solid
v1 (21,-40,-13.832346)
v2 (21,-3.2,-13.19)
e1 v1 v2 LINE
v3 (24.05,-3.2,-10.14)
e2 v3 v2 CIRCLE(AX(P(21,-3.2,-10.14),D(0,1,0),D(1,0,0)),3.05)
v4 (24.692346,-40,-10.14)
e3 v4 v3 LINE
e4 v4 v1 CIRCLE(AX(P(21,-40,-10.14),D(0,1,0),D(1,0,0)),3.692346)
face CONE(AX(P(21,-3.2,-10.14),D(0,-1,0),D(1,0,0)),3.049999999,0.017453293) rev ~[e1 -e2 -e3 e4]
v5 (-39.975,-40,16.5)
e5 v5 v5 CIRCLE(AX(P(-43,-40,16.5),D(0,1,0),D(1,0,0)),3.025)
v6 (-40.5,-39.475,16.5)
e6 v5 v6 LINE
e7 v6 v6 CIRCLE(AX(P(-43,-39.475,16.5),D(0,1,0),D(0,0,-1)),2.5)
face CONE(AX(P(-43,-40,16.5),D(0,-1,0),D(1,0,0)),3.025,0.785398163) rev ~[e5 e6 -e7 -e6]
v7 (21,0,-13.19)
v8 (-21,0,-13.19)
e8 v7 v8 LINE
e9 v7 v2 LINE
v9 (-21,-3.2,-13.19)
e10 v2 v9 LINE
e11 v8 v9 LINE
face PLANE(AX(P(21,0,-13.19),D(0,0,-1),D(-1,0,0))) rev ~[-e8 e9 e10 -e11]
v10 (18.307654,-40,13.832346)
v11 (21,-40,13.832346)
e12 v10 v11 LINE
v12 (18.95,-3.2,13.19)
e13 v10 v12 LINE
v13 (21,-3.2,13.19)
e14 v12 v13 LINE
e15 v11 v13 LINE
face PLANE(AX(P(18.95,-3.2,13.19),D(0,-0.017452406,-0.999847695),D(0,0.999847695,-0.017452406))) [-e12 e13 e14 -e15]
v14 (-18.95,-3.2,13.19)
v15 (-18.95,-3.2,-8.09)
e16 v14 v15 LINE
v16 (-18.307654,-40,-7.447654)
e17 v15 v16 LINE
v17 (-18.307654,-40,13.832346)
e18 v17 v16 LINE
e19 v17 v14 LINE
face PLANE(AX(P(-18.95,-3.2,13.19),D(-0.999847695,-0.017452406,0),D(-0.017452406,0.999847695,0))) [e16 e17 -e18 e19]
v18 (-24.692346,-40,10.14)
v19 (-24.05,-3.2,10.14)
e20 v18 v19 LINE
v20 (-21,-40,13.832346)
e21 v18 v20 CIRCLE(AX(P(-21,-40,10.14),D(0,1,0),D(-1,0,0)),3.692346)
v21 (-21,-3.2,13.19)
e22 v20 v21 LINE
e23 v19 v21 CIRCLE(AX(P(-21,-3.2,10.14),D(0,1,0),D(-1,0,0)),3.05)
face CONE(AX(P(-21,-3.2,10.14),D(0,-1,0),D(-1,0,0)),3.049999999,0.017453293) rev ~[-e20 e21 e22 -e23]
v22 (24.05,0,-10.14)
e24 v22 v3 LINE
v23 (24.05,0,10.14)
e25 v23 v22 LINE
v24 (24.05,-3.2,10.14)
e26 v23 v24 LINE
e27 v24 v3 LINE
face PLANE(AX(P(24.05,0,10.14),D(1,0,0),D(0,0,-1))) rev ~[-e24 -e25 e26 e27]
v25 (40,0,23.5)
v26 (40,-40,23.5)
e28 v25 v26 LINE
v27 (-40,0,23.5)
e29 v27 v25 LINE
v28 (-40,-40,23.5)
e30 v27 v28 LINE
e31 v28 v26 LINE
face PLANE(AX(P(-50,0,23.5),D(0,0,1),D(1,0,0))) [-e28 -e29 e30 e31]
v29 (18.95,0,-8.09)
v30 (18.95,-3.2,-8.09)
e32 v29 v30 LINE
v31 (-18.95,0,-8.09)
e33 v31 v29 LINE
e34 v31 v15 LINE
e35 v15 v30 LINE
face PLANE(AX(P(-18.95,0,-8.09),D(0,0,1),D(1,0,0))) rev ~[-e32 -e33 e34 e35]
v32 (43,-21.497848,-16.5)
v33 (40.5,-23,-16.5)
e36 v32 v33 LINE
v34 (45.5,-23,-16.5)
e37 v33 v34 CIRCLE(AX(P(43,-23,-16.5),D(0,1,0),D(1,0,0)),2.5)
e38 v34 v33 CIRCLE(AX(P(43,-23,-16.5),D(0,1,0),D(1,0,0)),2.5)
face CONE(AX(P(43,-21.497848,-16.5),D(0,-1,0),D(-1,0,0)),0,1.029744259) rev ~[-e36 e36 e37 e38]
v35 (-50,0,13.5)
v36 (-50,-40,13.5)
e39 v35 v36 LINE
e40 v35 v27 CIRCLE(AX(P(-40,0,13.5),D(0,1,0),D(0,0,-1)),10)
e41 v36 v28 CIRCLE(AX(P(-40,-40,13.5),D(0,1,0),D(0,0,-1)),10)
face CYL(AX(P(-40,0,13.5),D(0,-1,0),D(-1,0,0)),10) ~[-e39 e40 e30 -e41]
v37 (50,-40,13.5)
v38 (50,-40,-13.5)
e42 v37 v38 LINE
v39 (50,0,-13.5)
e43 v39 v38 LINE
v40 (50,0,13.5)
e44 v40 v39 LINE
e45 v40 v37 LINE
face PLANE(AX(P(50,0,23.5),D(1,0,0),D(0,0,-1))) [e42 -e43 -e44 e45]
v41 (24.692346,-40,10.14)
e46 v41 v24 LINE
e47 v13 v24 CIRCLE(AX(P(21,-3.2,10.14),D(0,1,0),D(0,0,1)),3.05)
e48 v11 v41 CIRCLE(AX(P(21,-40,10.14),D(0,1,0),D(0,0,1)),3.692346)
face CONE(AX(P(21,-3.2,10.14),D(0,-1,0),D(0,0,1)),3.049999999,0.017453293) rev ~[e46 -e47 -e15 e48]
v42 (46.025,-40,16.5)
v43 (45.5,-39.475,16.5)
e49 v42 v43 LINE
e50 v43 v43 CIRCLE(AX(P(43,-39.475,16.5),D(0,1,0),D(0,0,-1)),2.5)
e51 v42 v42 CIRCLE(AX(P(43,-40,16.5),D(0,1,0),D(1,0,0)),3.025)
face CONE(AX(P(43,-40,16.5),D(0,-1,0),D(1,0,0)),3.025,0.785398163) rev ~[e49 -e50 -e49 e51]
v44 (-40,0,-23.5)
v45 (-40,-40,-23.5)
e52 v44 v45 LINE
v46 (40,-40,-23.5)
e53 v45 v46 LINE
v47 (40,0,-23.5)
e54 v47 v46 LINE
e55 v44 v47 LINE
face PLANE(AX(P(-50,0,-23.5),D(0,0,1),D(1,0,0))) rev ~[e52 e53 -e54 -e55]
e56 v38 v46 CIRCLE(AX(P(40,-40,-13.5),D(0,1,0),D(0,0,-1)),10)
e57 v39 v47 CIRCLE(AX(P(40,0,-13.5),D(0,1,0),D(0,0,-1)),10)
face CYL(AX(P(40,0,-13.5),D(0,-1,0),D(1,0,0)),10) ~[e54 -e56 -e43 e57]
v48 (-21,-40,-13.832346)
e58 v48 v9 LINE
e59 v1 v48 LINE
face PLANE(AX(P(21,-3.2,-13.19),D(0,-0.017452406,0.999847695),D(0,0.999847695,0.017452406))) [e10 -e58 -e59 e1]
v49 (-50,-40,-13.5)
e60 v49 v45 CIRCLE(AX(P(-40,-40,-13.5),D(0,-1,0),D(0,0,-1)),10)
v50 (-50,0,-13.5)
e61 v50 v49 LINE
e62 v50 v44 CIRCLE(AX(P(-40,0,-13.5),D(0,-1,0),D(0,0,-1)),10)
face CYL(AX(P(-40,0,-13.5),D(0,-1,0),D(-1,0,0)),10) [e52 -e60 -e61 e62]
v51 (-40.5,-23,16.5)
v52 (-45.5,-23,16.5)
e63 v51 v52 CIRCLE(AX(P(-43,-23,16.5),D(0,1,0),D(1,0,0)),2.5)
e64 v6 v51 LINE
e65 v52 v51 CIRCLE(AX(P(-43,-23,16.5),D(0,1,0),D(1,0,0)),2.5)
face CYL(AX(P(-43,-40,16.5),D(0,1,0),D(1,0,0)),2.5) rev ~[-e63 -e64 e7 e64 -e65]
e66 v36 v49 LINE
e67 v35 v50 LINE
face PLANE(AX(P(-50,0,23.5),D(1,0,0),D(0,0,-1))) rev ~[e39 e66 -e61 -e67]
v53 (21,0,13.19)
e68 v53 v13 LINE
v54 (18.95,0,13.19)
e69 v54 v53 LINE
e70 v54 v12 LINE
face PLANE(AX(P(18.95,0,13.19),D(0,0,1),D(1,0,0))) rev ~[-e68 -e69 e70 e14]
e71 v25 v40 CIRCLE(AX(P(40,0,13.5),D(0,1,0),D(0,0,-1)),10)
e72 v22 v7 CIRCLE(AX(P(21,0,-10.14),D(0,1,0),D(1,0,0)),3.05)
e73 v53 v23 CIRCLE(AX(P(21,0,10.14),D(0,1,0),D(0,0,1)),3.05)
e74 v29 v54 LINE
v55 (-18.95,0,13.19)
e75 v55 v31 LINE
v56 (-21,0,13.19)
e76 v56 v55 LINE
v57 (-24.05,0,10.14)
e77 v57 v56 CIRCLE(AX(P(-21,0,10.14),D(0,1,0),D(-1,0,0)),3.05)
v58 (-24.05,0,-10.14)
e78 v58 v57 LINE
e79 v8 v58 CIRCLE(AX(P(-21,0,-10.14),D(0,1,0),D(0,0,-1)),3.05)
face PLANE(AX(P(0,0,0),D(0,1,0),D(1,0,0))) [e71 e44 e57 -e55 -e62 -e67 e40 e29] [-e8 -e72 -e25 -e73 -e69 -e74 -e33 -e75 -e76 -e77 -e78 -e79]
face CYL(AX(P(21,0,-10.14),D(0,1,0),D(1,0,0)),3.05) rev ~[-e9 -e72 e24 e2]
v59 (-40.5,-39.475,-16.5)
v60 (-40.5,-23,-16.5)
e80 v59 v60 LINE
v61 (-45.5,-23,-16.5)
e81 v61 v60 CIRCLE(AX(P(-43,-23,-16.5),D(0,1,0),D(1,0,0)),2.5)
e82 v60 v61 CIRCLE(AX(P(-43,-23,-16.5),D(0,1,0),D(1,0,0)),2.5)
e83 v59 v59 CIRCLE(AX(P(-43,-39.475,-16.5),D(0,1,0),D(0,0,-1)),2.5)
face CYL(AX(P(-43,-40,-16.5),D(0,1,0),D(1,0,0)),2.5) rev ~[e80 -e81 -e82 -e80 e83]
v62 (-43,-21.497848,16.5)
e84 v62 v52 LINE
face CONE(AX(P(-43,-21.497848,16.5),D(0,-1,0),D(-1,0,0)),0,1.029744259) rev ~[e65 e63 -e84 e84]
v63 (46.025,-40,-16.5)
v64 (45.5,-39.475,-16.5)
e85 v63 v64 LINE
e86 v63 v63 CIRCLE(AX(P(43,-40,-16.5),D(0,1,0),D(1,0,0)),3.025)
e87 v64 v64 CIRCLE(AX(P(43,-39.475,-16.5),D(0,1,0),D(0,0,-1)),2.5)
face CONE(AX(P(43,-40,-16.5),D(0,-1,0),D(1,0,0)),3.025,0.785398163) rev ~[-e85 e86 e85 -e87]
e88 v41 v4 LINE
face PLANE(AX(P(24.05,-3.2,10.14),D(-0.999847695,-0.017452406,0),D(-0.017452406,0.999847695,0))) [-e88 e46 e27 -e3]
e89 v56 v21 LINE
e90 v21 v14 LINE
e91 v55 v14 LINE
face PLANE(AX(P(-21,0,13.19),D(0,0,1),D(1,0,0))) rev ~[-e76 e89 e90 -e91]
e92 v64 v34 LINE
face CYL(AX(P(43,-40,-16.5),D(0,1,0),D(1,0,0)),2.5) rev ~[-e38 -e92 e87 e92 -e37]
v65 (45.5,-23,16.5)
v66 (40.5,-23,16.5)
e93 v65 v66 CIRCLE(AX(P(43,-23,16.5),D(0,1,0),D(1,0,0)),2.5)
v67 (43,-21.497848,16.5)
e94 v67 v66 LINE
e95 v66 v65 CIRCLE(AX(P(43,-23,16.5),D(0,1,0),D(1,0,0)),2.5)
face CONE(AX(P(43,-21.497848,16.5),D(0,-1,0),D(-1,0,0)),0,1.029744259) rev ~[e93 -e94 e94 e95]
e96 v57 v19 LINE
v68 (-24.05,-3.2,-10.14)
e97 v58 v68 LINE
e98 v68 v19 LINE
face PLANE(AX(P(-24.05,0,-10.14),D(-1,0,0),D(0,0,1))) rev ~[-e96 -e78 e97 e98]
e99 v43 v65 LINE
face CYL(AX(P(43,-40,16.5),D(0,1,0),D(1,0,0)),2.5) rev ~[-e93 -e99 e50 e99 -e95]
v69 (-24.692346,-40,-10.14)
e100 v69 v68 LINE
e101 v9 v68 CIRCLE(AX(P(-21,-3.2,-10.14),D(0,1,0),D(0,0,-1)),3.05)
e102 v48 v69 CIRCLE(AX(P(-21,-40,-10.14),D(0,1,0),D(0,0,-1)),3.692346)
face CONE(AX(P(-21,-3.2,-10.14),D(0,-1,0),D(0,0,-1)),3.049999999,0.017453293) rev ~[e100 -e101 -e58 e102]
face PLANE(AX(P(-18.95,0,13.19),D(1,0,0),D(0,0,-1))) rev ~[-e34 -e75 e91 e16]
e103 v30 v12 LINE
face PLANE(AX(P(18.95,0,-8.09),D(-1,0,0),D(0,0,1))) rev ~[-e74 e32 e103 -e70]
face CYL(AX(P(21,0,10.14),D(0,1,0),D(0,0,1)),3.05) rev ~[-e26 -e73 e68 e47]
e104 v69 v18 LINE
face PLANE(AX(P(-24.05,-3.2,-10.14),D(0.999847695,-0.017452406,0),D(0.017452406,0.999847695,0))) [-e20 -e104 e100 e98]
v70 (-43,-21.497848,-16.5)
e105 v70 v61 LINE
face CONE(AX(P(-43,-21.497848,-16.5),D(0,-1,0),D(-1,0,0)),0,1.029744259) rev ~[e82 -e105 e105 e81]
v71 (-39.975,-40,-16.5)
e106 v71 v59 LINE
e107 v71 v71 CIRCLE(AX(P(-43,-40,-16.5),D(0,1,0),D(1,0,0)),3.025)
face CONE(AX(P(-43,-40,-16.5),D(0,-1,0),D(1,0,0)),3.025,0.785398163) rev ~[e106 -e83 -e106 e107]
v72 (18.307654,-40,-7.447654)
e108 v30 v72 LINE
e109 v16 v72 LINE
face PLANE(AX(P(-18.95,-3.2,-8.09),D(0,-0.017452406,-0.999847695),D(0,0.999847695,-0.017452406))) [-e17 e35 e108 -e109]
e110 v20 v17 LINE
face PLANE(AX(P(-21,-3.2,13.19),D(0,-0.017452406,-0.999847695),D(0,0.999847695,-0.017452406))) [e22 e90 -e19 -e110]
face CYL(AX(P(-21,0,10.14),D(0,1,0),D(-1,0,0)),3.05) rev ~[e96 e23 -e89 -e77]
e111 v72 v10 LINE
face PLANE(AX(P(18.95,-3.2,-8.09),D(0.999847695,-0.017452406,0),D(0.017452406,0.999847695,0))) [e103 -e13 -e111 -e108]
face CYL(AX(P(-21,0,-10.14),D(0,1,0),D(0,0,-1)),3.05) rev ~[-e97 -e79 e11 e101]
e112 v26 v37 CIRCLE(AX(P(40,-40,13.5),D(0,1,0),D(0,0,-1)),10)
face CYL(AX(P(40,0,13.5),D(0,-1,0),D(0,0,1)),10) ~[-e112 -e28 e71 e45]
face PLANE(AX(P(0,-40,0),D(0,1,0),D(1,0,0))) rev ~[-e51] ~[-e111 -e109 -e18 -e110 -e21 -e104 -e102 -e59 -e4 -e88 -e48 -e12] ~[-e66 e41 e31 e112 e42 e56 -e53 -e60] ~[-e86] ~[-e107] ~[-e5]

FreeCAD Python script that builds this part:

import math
import FreeCAD as App
import Part
import Sketcher
Q = App.Units.Quantity


def edges_at(feature, points):
    """Names of the edges that pass closest to the given points."""
    edges = feature.Shape.Edges
    near = lambda p: min(range(len(edges)), key=lambda i: edges[i].distToShape(Part.Vertex(*p))[0])
    return sorted({f"Edge{near(p) + 1}" for p in points})


def add_polygon(sketch, points):
    """Adds a closed chain of lines whose ends are joined by coincident constraints."""
    first, n = sketch.GeometryCount, len(points)
    for a, b in zip(points, points[1:] + points[:1]):
        sketch.addGeometry(Part.LineSegment(App.Vector(*a, 0), App.Vector(*b, 0)), False)
    for i in range(n):
        sketch.addConstraint(Sketcher.Constraint("Coincident", first + i, 2, first + (i + 1) % n, 1))

doc = App.newDocument("Part")
body = doc.addObject("PartDesign::Body", "Body")

# Sketch on XZ plane
sketch1 = doc.addObject("Sketcher::SketchObject", "Sketch")
body.addObject(sketch1)
sketch1.AttachmentSupport = (doc.XZ_Plane, [""])
sketch1.MapMode = "FlatFace"
add_polygon(sketch1, [(-50, -24), (-50, 24), (50, 24), (50, -24)])  # lines 0-3
sketch1.addConstraint(Sketcher.Constraint("Vertical", 0))
sketch1.addConstraint(Sketcher.Constraint("Horizontal", 1))
sketch1.addConstraint(Sketcher.Constraint("Vertical", 2))
sketch1.addConstraint(Sketcher.Constraint("Horizontal", 3))
sketch1.addConstraint(Sketcher.Constraint("Symmetric", 0, 2, 2, 2, -1, 1))
sketch1.addConstraint(Sketcher.Constraint("DistanceX", 1, 1, 1, 2, Q("100 mm")))
sketch1.addConstraint(Sketcher.Constraint("DistanceY", 0, 1, 0, 2, Q("47 mm")))
pad1 = doc.addObject("PartDesign::Pad", "Pad")
body.addObject(pad1)
pad1.Profile = sketch1
pad1.Length = 40
doc.recompute()

fillet = doc.addObject("PartDesign::Fillet", "Fillet")
body.addObject(fillet)
fillet.Base = (pad1, edges_at(pad1, [
    (50, -20, 23.5),
    (-50, -20, 23.5),
    (-50, -20, -23.5),
    (50, -20, -23.5),
]))
fillet.Radius = 10

# Sketch on XZ plane
sketch2 = doc.addObject("Sketcher::SketchObject", "Sketch001")
body.addObject(sketch2)
sketch2.AttachmentSupport = (doc.XZ_Plane, [""])
sketch2.MapMode = "FlatFace"
sketch2.addGeometry(Part.LineSegment(App.Vector(24.1, 10.1, 0), App.Vector(24.1, -10.1, 0)), False)
sketch2.addGeometry(Part.ArcOfCircle(Part.Circle(App.Vector(21, -10.1, 0), App.Vector(0, 0, 1), 3), math.radians(-90), math.radians(0)), False)
sketch2.addGeometry(Part.LineSegment(App.Vector(21, -13.2, 0), App.Vector(-21, -13.2, 0)), False)
sketch2.addGeometry(Part.ArcOfCircle(Part.Circle(App.Vector(-21, -10.1, 0), App.Vector(0, 0, 1), 3), math.radians(180), math.radians(270)), False)
sketch2.addGeometry(Part.LineSegment(App.Vector(-24.1, -10.1, 0), App.Vector(-24.1, 10.1, 0)), False)
sketch2.addGeometry(Part.ArcOfCircle(Part.Circle(App.Vector(-21, 10.1, 0), App.Vector(0, 0, 1), 3), math.radians(90), math.radians(180)), False)
sketch2.addGeometry(Part.LineSegment(App.Vector(-21, 13.2, 0), App.Vector(-18.9, 13.2, 0)), False)
sketch2.addGeometry(Part.LineSegment(App.Vector(-18.9, 13.2, 0), App.Vector(-18.9, -8.1, 0)), False)
sketch2.addGeometry(Part.LineSegment(App.Vector(-18.9, -8.1, 0), App.Vector(18.9, -8.1, 0)), False)
sketch2.addGeometry(Part.LineSegment(App.Vector(18.9, -8.1, 0), App.Vector(18.9, 13.2, 0)), False)
sketch2.addGeometry(Part.LineSegment(App.Vector(18.9, 13.2, 0), App.Vector(21, 13.2, 0)), False)
sketch2.addGeometry(Part.ArcOfCircle(Part.Circle(App.Vector(21, 10.1, 0), App.Vector(0, 0, 1), 3), math.radians(0), math.radians(90)), False)
sketch2.addConstraint(Sketcher.Constraint("Tangent", 0, 2, 1, 2))
sketch2.addConstraint(Sketcher.Constraint("Tangent", 1, 1, 2, 1))
sketch2.addConstraint(Sketcher.Constraint("Tangent", 2, 2, 3, 2))
sketch2.addConstraint(Sketcher.Constraint("Tangent", 3, 1, 4, 1))
sketch2.addConstraint(Sketcher.Constraint("Tangent", 4, 2, 5, 2))
sketch2.addConstraint(Sketcher.Constraint("Tangent", 5, 1, 6, 1))
sketch2.addConstraint(Sketcher.Constraint("Coincident", 6, 2, 7, 1))
sketch2.addConstraint(Sketcher.Constraint("Coincident", 7, 2, 8, 1))
sketch2.addConstraint(Sketcher.Constraint("Coincident", 8, 2, 9, 1))
sketch2.addConstraint(Sketcher.Constraint("Coincident", 9, 2, 10, 1))
sketch2.addConstraint(Sketcher.Constraint("Tangent", 10, 2, 11, 2))
sketch2.addConstraint(Sketcher.Constraint("Tangent", 11, 1, 0, 1))
sketch2.addConstraint(Sketcher.Constraint("Vertical", 0))
sketch2.addConstraint(Sketcher.Constraint("Horizontal", 2))
sketch2.addConstraint(Sketcher.Constraint("Vertical", 4))
sketch2.addConstraint(Sketcher.Constraint("Horizontal", 6))
sketch2.addConstraint(Sketcher.Constraint("Vertical", 7))
sketch2.addConstraint(Sketcher.Constraint("Horizontal", 8))
sketch2.addConstraint(Sketcher.Constraint("Vertical", 9))
sketch2.addConstraint(Sketcher.Constraint("Horizontal", 10))
sketch2.addConstraint(Sketcher.Constraint("Equal", 1, 3))
sketch2.addConstraint(Sketcher.Constraint("Equal", 3, 5))
sketch2.addConstraint(Sketcher.Constraint("Equal", 5, 11))
sketch2.addConstraint(Sketcher.Constraint("Symmetric", 1, 3, 5, 3, -1, 1))
sketch2.addConstraint(Sketcher.Constraint("Symmetric", 6, 2, 9, 2, -2))
sketch2.addConstraint(Sketcher.Constraint("DistanceX", 2, 2, 2, 1, Q("42 mm")))
sketch2.addConstraint(Sketcher.Constraint("Radius", 1, Q("3.05 mm")))
sketch2.addConstraint(Sketcher.Constraint("DistanceX", 8, 1, 8, 2, Q("37.9 mm")))
sketch2.addConstraint(Sketcher.Constraint("DistanceY", 0, 2, 0, 1, Q("20.28 mm")))
sketch2.addConstraint(Sketcher.Constraint("DistanceY", 7, 2, 7, 1, Q("21.28 mm")))
pocket1 = doc.addObject("PartDesign::Pocket", "Pocket")
body.addObject(pocket1)
pocket1.Profile = sketch2
pocket1.Type = "UpToFirst"
pocket1.Reversed = True

# Sketch on XZ plane
sketch3 = doc.addObject("Sketcher::SketchObject", "Sketch002")
body.addObject(sketch3)
sketch3.AttachmentSupport = (doc.XZ_Plane, [""])
sketch3.MapMode = "FlatFace"
sketch3.AttachmentOffset = App.Placement(App.Vector(0, 0, 40), App.Rotation())
sketch3.addGeometry(Part.Circle(App.Vector(43, -16.5, 0), App.Vector(0, 0, 1), 2.5), False)
sketch3.addGeometry(Part.Circle(App.Vector(-43, -16.5, 0), App.Vector(0, 0, 1), 2.5), False)
sketch3.addGeometry(Part.Circle(App.Vector(-43, 16.5, 0), App.Vector(0, 0, 1), 2.5), False)
sketch3.addGeometry(Part.Circle(App.Vector(43, 16.5, 0), App.Vector(0, 0, 1), 2.5), False)
sketch3.addConstraint(Sketcher.Constraint("Equal", 0, 1))
sketch3.addConstraint(Sketcher.Constraint("Equal", 1, 2))
sketch3.addConstraint(Sketcher.Constraint("Equal", 2, 3))
sketch3.addConstraint(Sketcher.Constraint("Symmetric", 0, 3, 2, 3, -1, 1))
sketch3.addConstraint(Sketcher.Constraint("Symmetric", 1, 3, 3, 3, -1, 1))
sketch3.addConstraint(Sketcher.Constraint("Symmetric", 0, 3, 1, 3, -2))
sketch3.addConstraint(Sketcher.Constraint("Diameter", 0, Q("5 mm")))
sketch3.addConstraint(Sketcher.Constraint("DistanceX", -1, 1, 0, 3, Q("43 mm")))
sketch3.addConstraint(Sketcher.Constraint("DistanceY", 1, 3, 2, 3, Q("33 mm")))
doc.recompute()
hole = doc.addObject("PartDesign::Hole", "Hole")
body.addObject(hole)
hole.Profile = sketch3
hole.ThreadType = "None"
hole.Diameter = 5
hole.DepthType = "Dimension"
hole.Depth = 17
hole.DrillPoint = "Angled"
hole.DrillPointAngle = 118
hole.HoleCutType = "Countersink"
hole.HoleCutDiameter = 6.05
hole.HoleCutCountersinkAngle = 90

# Sketch on YZ plane
sketch4 = doc.addObject("Sketcher::SketchObject", "Sketch003")
body.addObject(sketch4)
sketch4.AttachmentSupport = (doc.YZ_Plane, [""])
sketch4.MapMode = "FlatFace"
add_polygon(sketch4, [(-40, -13.8), (-3.2, -13.2), (-40, -13.2)])  # lines 0-2
sketch4.addConstraint(Sketcher.Constraint("Horizontal", 1))
sketch4.addConstraint(Sketcher.Constraint("Vertical", 2))
sketch4.addConstraint(Sketcher.Constraint("Angle", 0, Q("1 deg")))
sketch4.addConstraint(Sketcher.Constraint("DistanceX", 1, 2, 1, 1, Q("36.8 mm")))
sketch4.addConstraint(Sketcher.Constraint("DistanceX", 1, 2, -1, 1, Q("40 mm")))
sketch4.addConstraint(Sketcher.Constraint("DistanceY", 0, 2, -1, 1, Q("13.19 mm")))

# Sketch on XZ plane
sketch5 = doc.addObject("Sketcher::SketchObject", "Sketch004")
body.addObject(sketch5)
sketch5.AttachmentSupport = (doc.XZ_Plane, [""])
sketch5.MapMode = "FlatFace"
sketch5.addGeometry(Part.LineSegment(App.Vector(18.9, -8.1, 0), App.Vector(18.9, 13.2, 0)), False)
sketch5.addGeometry(Part.LineSegment(App.Vector(18.9, 13.2, 0), App.Vector(21, 13.2, 0)), False)
sketch5.addGeometry(Part.ArcOfCircle(Part.Circle(App.Vector(21, 10.1, 0), App.Vector(0, 0, 1), 3), math.radians(0), math.radians(90)), False)
sketch5.addGeometry(Part.LineSegment(App.Vector(24.1, 10.1, 0), App.Vector(24.1, -10.1, 0)), False)
sketch5.addGeometry(Part.ArcOfCircle(Part.Circle(App.Vector(21, -10.1, 0), App.Vector(0, 0, 1), 3), math.radians(-90), math.radians(0)), False)
sketch5.addGeometry(Part.LineSegment(App.Vector(21, -13.2, 0), App.Vector(-21, -13.2, 0)), False)
sketch5.addGeometry(Part.ArcOfCircle(Part.Circle(App.Vector(-21, -10.1, 0), App.Vector(0, 0, 1), 3), math.radians(180), math.radians(270)), False)
sketch5.addGeometry(Part.LineSegment(App.Vector(-24.1, -10.1, 0), App.Vector(-24.1, 10.1, 0)), False)
sketch5.addGeometry(Part.ArcOfCircle(Part.Circle(App.Vector(-21, 10.1, 0), App.Vector(0, 0, 1), 3), math.radians(90), math.radians(180)), False)
sketch5.addGeometry(Part.LineSegment(App.Vector(-21, 13.2, 0), App.Vector(-18.9, 13.2, 0)), False)
sketch5.addGeometry(Part.LineSegment(App.Vector(-18.9, 13.2, 0), App.Vector(-18.9, -8.1, 0)), False)
sketch5.addGeometry(Part.LineSegment(App.Vector(-18.9, -8.1, 0), App.Vector(18.9, -8.1, 0)), False)
sketch5.addConstraint(Sketcher.Constraint("Coincident", 0, 2, 1, 1))
sketch5.addConstraint(Sketcher.Constraint("Tangent", 1, 2, 2, 2))
sketch5.addConstraint(Sketcher.Constraint("Tangent", 2, 1, 3, 1))
sketch5.addConstraint(Sketcher.Constraint("Tangent", 3, 2, 4, 2))
sketch5.addConstraint(Sketcher.Constraint("Tangent", 4, 1, 5, 1))
sketch5.addConstraint(Sketcher.Constraint("Tangent", 5, 2, 6, 2))
sketch5.addConstraint(Sketcher.Constraint("Tangent", 6, 1, 7, 1))
sketch5.addConstraint(Sketcher.Constraint("Tangent", 7, 2, 8, 2))
sketch5.addConstraint(Sketcher.Constraint("Tangent", 8, 1, 9, 1))
sketch5.addConstraint(Sketcher.Constraint("Coincident", 9, 2, 10, 1))
sketch5.addConstraint(Sketcher.Constraint("Coincident", 10, 2, 11, 1))
sketch5.addConstraint(Sketcher.Constraint("Coincident", 11, 2, 0, 1))
sketch5.addConstraint(Sketcher.Constraint("Vertical", 0))
sketch5.addConstraint(Sketcher.Constraint("Horizontal", 1))
sketch5.addConstraint(Sketcher.Constraint("Vertical", 3))
sketch5.addConstraint(Sketcher.Constraint("Horizontal", 5))
sketch5.addConstraint(Sketcher.Constraint("Vertical", 7))
sketch5.addConstraint(Sketcher.Constraint("Horizontal", 9))
sketch5.addConstraint(Sketcher.Constraint("Vertical", 10))
sketch5.addConstraint(Sketcher.Constraint("Horizontal", 11))
sketch5.addConstraint(Sketcher.Constraint("Equal", 2, 4))
sketch5.addConstraint(Sketcher.Constraint("Equal", 4, 6))
sketch5.addConstraint(Sketcher.Constraint("Equal", 6, 8))
sketch5.addConstraint(Sketcher.Constraint("Symmetric", 2, 3, 6, 3, -1, 1))
sketch5.addConstraint(Sketcher.Constraint("Symmetric", 0, 2, 9, 2, -2))
sketch5.addConstraint(Sketcher.Constraint("DistanceX", 5, 2, 5, 1, Q("42 mm")))
sketch5.addConstraint(Sketcher.Constraint("Radius", 2, Q("3.05 mm")))
sketch5.addConstraint(Sketcher.Constraint("DistanceX", 11, 1, 11, 2, Q("37.9 mm")))
sketch5.addConstraint(Sketcher.Constraint("DistanceY", 0, 1, 0, 2, Q("21.28 mm")))
sketch5.addConstraint(Sketcher.Constraint("DistanceY", 3, 2, 3, 1, Q("20.28 mm")))
doc.recompute()

subtractivepipe = doc.addObject("PartDesign::SubtractivePipe", "SubtractivePipe")
body.addObject(subtractivepipe)
subtractivepipe.Profile = sketch4
subtractivepipe.Spine = (sketch5, ["Edge1", "Edge2", "Edge3", "Edge4", "Edge5", "Edge6", "Edge7", "Edge8", "Edge9", "Edge10", "Edge11", "Edge12"])
subtractivepipe.Transition = "Right corner"

doc.recompute()
